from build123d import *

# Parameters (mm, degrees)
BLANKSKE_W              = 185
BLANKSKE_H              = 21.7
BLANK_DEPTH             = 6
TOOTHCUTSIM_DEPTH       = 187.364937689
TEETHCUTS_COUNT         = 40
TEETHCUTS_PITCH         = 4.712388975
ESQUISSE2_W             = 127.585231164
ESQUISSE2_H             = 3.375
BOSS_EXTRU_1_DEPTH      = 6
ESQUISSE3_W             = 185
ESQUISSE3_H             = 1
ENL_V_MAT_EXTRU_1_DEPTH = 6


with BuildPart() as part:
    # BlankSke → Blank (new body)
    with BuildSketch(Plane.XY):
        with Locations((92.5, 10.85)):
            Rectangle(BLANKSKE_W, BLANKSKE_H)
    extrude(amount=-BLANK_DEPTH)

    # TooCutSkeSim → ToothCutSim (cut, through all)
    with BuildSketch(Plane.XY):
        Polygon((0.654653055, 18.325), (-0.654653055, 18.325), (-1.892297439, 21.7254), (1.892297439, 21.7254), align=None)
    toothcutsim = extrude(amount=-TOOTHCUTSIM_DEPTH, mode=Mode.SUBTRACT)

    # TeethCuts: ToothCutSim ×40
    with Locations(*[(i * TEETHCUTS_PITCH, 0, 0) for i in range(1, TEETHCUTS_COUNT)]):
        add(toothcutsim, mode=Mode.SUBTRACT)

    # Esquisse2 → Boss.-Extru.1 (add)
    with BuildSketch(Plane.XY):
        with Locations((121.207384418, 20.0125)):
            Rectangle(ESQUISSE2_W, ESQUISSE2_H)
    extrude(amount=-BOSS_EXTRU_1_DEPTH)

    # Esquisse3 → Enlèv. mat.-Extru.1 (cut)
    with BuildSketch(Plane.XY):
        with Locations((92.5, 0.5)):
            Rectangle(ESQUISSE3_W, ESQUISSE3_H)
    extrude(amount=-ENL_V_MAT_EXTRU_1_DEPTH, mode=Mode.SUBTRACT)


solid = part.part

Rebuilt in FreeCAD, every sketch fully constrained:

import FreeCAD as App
import Part
import Sketcher
from FreeCAD import Vector
Q = App.Units.Quantity


def add_polygon(sketch, points):
    """Adds a closed chain of lines whose ends are joined by coincident constraints."""
    first, n = sketch.GeometryCount, len(points)
    for a, b in zip(points, points[1:] + points[:1]):
        sketch.addGeometry(Part.LineSegment(App.Vector(*a, 0), App.Vector(*b, 0)), False)
    for i in range(n):
        sketch.addConstraint(Sketcher.Constraint("Coincident", first + i, 2, first + (i + 1) % n, 1))

doc = App.newDocument("Part")
body = doc.addObject("PartDesign::Body", "Body")

# Sketch on XY plane
sketch1 = body.newObject("Sketcher::SketchObject", "Sketch")
sketch1.AttachmentSupport = (doc.getObject("XY_Plane"), [""])
sketch1.MapMode = "FlatFace"
add_polygon(sketch1, [(0, 21.7), (0, 0), (185, 0), (185, 21.7)])  # lines 0-3
sketch1.addConstraint([
    Sketcher.Constraint("Vertical", 0),
    Sketcher.Constraint("Horizontal", 1),
    Sketcher.Constraint("Vertical", 2),
    Sketcher.Constraint("Horizontal", 3),
    Sketcher.Constraint("Coincident", 0, 2, -1, 1),
    Sketcher.Constraint("DistanceX", 1, 1, 1, 2, Q("185 mm")),
    Sketcher.Constraint("DistanceY", 0, 2, 0, 1, Q("21.7 mm")),
])
pad1 = body.newObject("PartDesign::Pad", "Pad")
pad1.Profile = sketch1
pad1.Length = 6
pad1.Reversed = True

# Sketch on XY plane
sketch2 = body.newObject("Sketcher::SketchObject", "Sketch001")
sketch2.AttachmentSupport = (doc.getObject("XY_Plane"), [""])
sketch2.MapMode = "FlatFace"
add_polygon(sketch2, [(-0.654653, 18.325), (0.654653, 18.325), (1.892297, 21.7254), (-1.892297, 21.7254)])  # lines 0-3
sketch2.addConstraint([
    Sketcher.Constraint("Horizontal", 0),
    Sketcher.Constraint("Horizontal", 2),
    Sketcher.Constraint("Equal", 1, 3),
    Sketcher.Constraint("Angle", 1, Q("70 deg")),
    Sketcher.Constraint("DistanceY", -1, 1, 0, 2, Q("18.325 mm")),
    Sketcher.Constraint("DistanceY", -1, 1, 1, 2, Q("21.7254 mm")),
    Sketcher.Constraint("DistanceX", 0, 1, 0, 2, Q("1.309306 mm")),
    Sketcher.Constraint("DistanceX", -1, 1, 0, 2, Q("0.654653 mm")),
])
pocket1 = body.newObject("PartDesign::Pocket", "Pocket")
pocket1.Profile = sketch2
pocket1.Type = "ThroughAll"
doc.recompute()

linearpattern = body.newObject("PartDesign::LinearPattern", "LinearPattern")
linearpattern.Originals = [pocket1]
linearpattern.Direction = (doc.getObject("X_Axis"), [""])
linearpattern.Mode = "offset"
linearpattern.Offset = 4.712389
linearpattern.Occurrences = 40
body.Tip = linearpattern

# Sketch on XY plane
sketch3 = body.newObject("Sketcher::SketchObject", "Sketch002")
sketch3.AttachmentSupport = (doc.getObject("XY_Plane"), [""])
sketch3.MapMode = "FlatFace"
add_polygon(sketch3, [(57.414769, 21.7), (57.414769, 18.325), (185, 18.325), (185, 21.7)])  # lines 0-3
sketch3.addConstraint([
    Sketcher.Constraint("Vertical", 0),
    Sketcher.Constraint("Horizontal", 1),
    Sketcher.Constraint("Vertical", 2),
    Sketcher.Constraint("Horizontal", 3),
    Sketcher.Constraint("DistanceX", -1, 1, 1, 2, Q("185 mm")),
    Sketcher.Constraint("DistanceY", -1, 1, 2, 2, Q("21.7 mm")),
    Sketcher.Constraint("DistanceY", 0, 2, 0, 1, Q("3.375 mm")),
    Sketcher.Constraint("DistanceX", 1, 1, 1, 2, Q("127.585231 mm")),
])
pad2 = body.newObject("PartDesign::Pad", "Pad001")
pad2.Profile = sketch3
pad2.Length = 6
pad2.Reversed = True

# Sketch on XY plane
sketch4 = body.newObject("Sketcher::SketchObject", "Sketch003")
sketch4.AttachmentSupport = (doc.getObject("XY_Plane"), [""])
sketch4.MapMode = "FlatFace"
add_polygon(sketch4, [(0, 1), (0, 0), (185, 0), (185, 1)])  # lines 0-3
sketch4.addConstraint([
    Sketcher.Constraint("Vertical", 0),
    Sketcher.Constraint("Horizontal", 1),
    Sketcher.Constraint("Vertical", 2),
    Sketcher.Constraint("Horizontal", 3),
    Sketcher.Constraint("Coincident", 0, 2, -1, 1),
    Sketcher.Constraint("DistanceX", 1, 1, 1, 2, Q("185 mm")),
    Sketcher.Constraint("DistanceY", 0, 2, 0, 1, Q("1 mm")),
])
pocket2 = body.newObject("PartDesign::Pocket", "Pocket001")
pocket2.Profile = sketch4
pocket2.Length = 6

doc.recompute()
